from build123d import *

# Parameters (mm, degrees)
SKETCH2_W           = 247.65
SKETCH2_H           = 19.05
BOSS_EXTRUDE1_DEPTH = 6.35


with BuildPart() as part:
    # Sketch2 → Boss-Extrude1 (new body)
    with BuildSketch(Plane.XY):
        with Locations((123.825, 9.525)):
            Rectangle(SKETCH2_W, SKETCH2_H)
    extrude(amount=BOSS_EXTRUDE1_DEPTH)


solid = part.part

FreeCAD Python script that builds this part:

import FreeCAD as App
import Part
import Sketcher
Q = App.Units.Quantity

doc = App.newDocument("Part")
body = doc.addObject("PartDesign::Body", "Body")

# Sketch on XY plane
sketch1 = body.newObject("Sketcher::SketchObject", "Sketch")
sketch1.AttachmentSupport = (doc.getObject("XY_Plane"), [""])
sketch1.MapMode = "FlatFace"
sketch1.addGeometry(Part.LineSegment(App.Vector(0, 19, 0), App.Vector(0, 0, 0)), False)
sketch1.addGeometry(Part.LineSegment(App.Vector(0, 0, 0), App.Vector(248, 0, 0)), False)
sketch1.addGeometry(Part.LineSegment(App.Vector(248, 0, 0), App.Vector(248, 19, 0)), False)
sketch1.addGeometry(Part.LineSegment(App.Vector(248, 19, 0), App.Vector(0, 19, 0)), False)
sketch1.addConstraint(Sketcher.Constraint("Coincident", 0, 2, 1, 1))
sketch1.addConstraint(Sketcher.Constraint("Coincident", 1, 2, 2, 1))
sketch1.addConstraint(Sketcher.Constraint("Coincident", 2, 2, 3, 1))
sketch1.addConstraint(Sketcher.Constraint("Coincident", 3, 2, 0, 1))
sketch1.addConstraint(Sketcher.Constraint("Vertical", 0))
sketch1.addConstraint(Sketcher.Constraint("Horizontal", 1))
sketch1.addConstraint(Sketcher.Constraint("Vertical", 2))
sketch1.addConstraint(Sketcher.Constraint("Horizontal", 3))
sketch1.addConstraint(Sketcher.Constraint("Coincident", 0, 2, -1, 1))
sketch1.addConstraint(Sketcher.Constraint("DistanceX", 1, 1, 1, 2, Q("9.75 in")))
sketch1.addConstraint(Sketcher.Constraint("DistanceY", 0, 2, 0, 1, Q("0.75 in")))
pad1 = body.newObject("PartDesign::Pad", "Pad")
pad1.Profile = sketch1
pad1.Length = Q("0.25 in")

doc.recompute()
